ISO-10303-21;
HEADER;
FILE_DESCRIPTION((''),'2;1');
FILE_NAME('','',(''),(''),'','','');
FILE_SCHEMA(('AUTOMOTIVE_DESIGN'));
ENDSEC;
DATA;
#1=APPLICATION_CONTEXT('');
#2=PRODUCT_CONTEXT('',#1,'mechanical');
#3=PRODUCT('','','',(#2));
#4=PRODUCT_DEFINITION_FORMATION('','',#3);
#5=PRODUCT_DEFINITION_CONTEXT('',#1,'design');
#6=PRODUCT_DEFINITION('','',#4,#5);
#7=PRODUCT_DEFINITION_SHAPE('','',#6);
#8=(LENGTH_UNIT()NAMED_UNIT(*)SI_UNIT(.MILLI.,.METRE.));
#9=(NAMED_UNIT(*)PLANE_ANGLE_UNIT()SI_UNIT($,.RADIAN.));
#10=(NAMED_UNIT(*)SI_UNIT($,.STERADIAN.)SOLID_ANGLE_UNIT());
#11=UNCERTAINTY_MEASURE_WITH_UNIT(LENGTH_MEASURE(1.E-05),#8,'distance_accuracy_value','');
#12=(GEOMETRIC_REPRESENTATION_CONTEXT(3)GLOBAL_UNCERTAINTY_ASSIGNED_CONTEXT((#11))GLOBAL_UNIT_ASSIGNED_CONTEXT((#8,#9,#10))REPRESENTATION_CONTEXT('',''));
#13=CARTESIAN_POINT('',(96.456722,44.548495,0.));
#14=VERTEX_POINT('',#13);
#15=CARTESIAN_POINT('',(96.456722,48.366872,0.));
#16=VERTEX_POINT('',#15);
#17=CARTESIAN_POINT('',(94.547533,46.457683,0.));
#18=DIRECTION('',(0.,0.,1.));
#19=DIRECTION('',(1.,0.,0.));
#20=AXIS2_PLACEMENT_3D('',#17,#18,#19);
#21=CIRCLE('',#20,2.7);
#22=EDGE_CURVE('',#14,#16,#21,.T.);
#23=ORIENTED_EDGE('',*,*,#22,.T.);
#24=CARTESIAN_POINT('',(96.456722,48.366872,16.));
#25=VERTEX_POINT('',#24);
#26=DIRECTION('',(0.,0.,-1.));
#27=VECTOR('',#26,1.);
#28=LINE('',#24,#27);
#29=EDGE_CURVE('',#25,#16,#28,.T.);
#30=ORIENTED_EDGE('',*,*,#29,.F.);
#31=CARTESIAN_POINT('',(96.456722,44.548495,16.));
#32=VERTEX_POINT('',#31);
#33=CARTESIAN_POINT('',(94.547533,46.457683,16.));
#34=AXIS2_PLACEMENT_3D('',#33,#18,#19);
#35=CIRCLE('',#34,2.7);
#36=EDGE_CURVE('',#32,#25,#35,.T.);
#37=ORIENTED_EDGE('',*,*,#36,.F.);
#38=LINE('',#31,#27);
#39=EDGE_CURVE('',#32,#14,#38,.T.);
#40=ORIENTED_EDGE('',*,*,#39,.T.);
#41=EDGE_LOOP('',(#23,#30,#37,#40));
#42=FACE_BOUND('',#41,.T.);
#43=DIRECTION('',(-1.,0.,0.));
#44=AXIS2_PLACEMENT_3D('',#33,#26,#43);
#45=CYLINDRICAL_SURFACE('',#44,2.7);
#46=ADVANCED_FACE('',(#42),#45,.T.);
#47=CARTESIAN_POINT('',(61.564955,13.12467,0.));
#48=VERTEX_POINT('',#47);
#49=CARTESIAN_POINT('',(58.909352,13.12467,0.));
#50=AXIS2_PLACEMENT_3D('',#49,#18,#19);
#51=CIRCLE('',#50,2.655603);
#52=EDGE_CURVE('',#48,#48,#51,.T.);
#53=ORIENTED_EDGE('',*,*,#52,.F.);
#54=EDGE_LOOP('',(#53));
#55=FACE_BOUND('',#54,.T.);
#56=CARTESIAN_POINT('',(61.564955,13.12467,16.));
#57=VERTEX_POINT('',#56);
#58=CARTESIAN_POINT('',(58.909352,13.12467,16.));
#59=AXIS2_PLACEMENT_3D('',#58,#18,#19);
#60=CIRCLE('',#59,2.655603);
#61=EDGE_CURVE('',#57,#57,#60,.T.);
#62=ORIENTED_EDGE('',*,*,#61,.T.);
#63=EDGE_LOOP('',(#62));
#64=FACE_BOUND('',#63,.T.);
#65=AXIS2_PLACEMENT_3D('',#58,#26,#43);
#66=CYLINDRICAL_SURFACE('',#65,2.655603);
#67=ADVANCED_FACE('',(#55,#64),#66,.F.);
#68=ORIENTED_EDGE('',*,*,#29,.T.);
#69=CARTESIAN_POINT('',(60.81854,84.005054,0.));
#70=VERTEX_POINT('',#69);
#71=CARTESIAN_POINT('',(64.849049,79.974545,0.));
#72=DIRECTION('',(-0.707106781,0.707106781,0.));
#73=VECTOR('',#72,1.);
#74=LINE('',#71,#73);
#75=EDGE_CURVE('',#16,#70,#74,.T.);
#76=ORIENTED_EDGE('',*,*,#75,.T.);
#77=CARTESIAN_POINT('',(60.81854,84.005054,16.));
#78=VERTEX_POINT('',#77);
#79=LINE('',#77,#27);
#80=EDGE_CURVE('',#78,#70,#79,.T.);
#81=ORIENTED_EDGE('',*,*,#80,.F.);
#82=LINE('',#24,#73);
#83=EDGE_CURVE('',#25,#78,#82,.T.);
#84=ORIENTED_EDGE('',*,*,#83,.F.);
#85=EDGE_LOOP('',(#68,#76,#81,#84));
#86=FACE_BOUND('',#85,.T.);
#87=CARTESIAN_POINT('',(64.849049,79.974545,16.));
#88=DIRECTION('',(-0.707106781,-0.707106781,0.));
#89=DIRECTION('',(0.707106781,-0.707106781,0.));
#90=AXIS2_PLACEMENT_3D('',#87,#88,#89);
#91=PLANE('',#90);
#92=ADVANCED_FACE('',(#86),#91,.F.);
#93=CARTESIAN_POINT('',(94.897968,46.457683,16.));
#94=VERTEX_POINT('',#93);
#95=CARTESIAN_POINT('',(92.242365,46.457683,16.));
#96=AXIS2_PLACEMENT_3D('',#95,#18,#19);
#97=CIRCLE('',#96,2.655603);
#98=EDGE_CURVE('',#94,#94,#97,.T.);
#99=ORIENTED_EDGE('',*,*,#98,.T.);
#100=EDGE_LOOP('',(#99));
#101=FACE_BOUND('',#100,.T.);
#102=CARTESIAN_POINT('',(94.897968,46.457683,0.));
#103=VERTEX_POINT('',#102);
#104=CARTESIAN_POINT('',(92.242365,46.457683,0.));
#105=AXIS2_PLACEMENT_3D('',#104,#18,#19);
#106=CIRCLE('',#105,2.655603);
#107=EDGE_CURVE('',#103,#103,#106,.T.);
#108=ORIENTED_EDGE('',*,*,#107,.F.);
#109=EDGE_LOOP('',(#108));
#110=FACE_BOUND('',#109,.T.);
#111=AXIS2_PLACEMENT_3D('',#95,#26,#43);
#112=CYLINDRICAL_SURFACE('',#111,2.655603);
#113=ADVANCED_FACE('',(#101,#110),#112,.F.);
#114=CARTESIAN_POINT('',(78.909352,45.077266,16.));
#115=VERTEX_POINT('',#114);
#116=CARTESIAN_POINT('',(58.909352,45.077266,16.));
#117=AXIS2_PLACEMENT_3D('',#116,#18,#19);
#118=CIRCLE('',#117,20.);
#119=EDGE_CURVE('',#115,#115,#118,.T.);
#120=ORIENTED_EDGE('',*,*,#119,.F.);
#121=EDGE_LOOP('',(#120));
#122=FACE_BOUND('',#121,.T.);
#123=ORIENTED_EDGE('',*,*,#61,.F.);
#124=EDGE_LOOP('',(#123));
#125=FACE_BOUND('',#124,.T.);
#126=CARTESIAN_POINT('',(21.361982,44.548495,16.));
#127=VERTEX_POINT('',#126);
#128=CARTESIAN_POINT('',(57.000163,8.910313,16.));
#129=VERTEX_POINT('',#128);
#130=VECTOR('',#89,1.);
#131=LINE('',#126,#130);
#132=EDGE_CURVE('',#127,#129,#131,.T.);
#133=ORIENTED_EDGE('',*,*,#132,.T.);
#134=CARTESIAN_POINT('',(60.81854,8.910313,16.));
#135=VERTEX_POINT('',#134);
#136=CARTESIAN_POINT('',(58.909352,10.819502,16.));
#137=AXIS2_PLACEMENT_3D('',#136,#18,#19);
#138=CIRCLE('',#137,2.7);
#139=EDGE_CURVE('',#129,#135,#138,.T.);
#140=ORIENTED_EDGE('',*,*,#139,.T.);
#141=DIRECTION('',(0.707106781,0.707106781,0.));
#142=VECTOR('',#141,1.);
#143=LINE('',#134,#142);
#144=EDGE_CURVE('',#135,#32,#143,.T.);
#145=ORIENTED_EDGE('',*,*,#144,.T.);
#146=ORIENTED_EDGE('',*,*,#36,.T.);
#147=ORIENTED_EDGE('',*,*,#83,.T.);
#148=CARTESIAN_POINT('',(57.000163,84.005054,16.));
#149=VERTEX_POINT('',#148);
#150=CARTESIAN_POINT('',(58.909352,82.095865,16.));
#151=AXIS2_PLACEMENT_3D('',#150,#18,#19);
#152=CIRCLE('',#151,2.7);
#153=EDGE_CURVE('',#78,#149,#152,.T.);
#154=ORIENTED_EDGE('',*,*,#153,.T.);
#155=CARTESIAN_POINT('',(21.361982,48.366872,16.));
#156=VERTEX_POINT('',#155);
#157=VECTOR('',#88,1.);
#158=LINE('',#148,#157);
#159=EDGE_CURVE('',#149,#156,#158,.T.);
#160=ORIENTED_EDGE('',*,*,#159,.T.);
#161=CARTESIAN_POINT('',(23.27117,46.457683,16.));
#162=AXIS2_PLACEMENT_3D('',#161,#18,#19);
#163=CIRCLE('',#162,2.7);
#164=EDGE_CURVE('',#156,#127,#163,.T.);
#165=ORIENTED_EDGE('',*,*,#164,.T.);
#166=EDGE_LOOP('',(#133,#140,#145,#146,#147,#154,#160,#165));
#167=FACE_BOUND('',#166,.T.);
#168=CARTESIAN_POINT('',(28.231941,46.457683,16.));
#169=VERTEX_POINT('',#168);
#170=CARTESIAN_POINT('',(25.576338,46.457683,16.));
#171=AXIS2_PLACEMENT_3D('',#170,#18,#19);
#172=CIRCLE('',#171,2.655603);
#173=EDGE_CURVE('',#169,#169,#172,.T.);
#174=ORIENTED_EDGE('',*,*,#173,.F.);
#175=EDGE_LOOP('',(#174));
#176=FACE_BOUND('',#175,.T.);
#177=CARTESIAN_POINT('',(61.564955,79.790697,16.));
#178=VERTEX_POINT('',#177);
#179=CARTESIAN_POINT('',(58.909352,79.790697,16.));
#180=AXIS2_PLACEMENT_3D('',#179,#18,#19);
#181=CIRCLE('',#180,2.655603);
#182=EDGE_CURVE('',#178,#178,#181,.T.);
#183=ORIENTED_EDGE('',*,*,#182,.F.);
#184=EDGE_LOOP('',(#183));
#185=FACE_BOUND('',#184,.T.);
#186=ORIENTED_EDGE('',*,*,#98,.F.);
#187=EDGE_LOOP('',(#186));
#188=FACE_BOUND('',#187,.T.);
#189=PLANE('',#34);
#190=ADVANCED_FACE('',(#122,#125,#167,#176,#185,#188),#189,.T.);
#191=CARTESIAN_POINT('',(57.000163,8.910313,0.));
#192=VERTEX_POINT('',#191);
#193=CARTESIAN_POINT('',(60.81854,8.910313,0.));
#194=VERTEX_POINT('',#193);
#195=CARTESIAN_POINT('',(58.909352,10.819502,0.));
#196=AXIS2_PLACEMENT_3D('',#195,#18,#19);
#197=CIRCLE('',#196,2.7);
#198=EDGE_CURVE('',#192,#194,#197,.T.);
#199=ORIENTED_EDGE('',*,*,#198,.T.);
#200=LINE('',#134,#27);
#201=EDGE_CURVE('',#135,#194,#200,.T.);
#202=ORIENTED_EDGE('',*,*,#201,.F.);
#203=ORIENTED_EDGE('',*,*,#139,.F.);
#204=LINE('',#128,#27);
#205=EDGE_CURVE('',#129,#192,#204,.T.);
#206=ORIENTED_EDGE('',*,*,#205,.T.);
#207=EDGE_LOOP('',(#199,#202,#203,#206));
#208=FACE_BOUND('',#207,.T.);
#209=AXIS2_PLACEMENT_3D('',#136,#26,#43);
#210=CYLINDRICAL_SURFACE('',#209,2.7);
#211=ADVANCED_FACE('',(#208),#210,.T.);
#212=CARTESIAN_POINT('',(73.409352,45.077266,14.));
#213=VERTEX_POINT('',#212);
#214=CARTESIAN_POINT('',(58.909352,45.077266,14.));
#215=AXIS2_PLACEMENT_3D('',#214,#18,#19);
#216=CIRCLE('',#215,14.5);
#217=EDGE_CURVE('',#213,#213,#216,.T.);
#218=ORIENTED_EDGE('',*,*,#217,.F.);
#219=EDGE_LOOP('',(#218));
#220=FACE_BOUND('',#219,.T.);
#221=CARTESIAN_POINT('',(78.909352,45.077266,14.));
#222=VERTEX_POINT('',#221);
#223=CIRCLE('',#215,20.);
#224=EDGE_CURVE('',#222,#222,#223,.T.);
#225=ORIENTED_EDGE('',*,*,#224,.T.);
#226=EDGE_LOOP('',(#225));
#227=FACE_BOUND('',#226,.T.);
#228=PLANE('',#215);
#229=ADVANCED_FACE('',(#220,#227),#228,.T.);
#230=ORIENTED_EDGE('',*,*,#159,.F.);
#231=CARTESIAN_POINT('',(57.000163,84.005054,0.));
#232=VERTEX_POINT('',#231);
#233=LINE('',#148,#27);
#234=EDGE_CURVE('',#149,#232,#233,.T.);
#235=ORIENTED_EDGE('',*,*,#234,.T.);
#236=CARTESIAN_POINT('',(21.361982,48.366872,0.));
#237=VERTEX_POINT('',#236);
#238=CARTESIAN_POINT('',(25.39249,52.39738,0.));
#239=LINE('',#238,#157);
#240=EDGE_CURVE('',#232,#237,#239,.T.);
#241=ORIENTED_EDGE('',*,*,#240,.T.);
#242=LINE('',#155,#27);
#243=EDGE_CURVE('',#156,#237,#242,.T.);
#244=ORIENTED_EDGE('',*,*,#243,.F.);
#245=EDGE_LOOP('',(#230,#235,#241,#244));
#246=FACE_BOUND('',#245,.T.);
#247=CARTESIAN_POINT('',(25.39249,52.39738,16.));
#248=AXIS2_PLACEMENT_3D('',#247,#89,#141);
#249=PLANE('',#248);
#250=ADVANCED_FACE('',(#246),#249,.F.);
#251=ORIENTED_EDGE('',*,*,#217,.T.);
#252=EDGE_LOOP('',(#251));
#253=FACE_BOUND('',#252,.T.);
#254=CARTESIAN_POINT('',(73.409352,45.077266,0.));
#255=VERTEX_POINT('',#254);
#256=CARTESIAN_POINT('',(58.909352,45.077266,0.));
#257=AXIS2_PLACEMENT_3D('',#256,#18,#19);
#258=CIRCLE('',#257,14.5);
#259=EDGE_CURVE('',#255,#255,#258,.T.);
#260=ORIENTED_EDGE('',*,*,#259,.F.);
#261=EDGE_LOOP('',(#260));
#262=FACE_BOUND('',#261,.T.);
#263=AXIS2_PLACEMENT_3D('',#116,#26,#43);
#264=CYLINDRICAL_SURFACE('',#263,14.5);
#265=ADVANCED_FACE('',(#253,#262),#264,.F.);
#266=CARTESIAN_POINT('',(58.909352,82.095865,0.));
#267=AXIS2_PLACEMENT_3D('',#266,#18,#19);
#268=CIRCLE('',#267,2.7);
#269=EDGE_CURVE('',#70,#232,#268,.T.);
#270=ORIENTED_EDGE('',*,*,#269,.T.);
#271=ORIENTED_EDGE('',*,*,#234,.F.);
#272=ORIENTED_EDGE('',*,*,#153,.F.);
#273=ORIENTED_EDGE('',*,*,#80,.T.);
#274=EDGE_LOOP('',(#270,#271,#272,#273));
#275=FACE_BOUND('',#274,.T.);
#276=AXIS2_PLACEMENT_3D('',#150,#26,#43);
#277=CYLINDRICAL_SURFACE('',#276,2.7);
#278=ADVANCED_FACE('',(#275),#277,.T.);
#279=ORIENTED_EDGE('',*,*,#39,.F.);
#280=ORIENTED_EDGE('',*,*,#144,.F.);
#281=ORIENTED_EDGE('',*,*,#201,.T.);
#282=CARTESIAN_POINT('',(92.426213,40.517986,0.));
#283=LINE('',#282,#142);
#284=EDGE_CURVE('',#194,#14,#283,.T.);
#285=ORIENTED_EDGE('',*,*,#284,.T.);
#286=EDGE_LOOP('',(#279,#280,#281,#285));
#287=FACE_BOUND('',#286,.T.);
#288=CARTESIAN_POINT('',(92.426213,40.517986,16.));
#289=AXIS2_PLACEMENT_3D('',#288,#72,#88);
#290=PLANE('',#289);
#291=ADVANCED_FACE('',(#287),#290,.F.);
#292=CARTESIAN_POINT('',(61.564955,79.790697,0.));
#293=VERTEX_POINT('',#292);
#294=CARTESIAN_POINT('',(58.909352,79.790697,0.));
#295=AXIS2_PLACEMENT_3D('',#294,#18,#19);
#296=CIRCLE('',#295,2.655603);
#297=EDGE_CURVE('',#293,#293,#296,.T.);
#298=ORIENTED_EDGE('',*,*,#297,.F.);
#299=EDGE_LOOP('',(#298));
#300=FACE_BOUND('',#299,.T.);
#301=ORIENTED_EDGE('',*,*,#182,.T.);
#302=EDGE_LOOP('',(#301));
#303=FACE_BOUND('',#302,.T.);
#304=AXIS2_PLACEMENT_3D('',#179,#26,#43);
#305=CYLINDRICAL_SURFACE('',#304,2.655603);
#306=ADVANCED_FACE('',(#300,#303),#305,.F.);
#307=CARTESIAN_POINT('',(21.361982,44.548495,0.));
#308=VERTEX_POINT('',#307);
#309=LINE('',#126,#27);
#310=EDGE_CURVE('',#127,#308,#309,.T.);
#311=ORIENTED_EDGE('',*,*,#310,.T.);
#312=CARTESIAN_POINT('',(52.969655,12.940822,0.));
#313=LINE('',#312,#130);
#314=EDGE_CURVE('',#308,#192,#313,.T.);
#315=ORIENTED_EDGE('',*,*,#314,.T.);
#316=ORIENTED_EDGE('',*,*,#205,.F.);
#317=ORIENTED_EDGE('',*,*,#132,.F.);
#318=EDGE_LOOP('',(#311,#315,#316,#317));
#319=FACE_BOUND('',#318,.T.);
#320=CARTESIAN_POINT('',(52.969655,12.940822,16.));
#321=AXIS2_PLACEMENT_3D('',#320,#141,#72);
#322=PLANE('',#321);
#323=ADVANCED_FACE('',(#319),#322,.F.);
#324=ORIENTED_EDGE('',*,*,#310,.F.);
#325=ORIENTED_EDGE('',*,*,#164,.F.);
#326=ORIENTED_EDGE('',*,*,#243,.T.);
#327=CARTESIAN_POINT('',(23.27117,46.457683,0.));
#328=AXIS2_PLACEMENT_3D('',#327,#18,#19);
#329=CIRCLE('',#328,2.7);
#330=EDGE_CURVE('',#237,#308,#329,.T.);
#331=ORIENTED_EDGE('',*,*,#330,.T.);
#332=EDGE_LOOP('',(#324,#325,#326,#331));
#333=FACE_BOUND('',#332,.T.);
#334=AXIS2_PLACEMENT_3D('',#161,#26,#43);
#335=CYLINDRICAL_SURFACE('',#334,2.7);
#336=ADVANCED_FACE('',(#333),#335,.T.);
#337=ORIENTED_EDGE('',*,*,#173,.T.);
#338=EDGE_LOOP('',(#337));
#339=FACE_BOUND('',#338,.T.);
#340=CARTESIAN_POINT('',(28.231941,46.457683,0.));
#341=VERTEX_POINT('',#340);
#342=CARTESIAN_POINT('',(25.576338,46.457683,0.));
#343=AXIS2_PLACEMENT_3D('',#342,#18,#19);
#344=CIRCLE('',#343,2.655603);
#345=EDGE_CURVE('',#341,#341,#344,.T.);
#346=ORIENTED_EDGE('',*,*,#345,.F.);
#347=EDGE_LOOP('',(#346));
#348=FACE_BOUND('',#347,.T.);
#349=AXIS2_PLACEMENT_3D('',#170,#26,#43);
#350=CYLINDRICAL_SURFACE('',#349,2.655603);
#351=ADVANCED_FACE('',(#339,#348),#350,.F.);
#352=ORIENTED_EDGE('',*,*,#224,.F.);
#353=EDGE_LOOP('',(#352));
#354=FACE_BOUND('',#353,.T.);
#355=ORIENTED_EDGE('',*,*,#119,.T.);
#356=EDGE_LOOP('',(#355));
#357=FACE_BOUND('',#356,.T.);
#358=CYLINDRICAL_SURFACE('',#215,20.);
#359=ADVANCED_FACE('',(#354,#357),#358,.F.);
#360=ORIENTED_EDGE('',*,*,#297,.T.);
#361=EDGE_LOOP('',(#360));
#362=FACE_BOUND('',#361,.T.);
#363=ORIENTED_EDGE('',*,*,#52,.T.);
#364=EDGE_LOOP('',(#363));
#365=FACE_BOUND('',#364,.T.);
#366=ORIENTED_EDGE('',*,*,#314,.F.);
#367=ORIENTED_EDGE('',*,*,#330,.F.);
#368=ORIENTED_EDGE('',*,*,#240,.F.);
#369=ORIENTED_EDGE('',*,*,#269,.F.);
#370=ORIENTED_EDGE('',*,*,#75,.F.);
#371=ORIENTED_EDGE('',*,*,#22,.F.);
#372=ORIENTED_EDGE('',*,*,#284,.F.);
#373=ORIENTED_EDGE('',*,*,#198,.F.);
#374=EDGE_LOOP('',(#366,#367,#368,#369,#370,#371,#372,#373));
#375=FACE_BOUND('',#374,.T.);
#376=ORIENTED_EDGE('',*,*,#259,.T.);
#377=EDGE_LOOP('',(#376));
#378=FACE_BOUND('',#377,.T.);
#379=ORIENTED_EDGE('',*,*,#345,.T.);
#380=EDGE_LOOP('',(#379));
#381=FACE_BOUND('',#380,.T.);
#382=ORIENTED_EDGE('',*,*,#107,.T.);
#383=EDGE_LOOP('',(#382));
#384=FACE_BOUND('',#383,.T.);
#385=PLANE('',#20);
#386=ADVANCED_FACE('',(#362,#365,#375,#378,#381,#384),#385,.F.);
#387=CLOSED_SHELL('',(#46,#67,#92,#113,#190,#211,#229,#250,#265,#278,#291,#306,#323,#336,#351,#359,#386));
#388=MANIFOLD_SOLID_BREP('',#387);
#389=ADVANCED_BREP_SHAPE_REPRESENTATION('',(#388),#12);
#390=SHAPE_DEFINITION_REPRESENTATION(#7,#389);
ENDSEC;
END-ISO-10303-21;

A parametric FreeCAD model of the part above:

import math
import FreeCAD as App
import Part
import Sketcher
from FreeCAD import Vector
Q = App.Units.Quantity

doc = App.newDocument("Part")
body = doc.addObject("PartDesign::Body", "Body")

# Sketch on XY plane
sketch1 = body.newObject("Sketcher::SketchObject", "Sketch")
sketch1.AttachmentSupport = (doc.getObject("XY_Plane"), [""])
sketch1.MapMode = "FlatFace"
sketch1.addGeometry([
    Part.LineSegment(Vector(96.456722, 48.366872, 0), Vector(60.81854, 84.005054, 0)),  # 0
    Part.ArcOfCircle(Part.Circle(Vector(58.909352, 82.095865, 0), Vector(0, 0, 1), 2.7), math.radians(45), math.radians(135)),  # 1
    Part.LineSegment(Vector(57.000163, 84.005054, 0), Vector(25.39249, 52.39738, 0)),  # 2
    Part.LineSegment(Vector(25.39249, 52.39738, 0), Vector(21.361982, 48.366872, 0)),  # 3
    Part.ArcOfCircle(Part.Circle(Vector(23.27117, 46.457683, 0), Vector(0, 0, 1), 2.7), math.radians(135), math.radians(225)),  # 4
    Part.LineSegment(Vector(21.361982, 44.548495, 0), Vector(52.969655, 12.940822, 0)),  # 5
    Part.LineSegment(Vector(52.969655, 12.940822, 0), Vector(57.000163, 8.910313, 0)),  # 6
    Part.ArcOfCircle(Part.Circle(Vector(58.909352, 10.819502, 0), Vector(0, 0, 1), 2.7), math.radians(-135), math.radians(-45)),  # 7
    Part.LineSegment(Vector(60.81854, 8.910313, 0), Vector(96.456722, 44.548495, 0)),  # 8
    Part.ArcOfCircle(Part.Circle(Vector(94.547533, 46.457683, 0), Vector(0, 0, 1), 2.7), math.radians(-45), math.radians(45)),  # 9
    Part.Circle(Vector(58.909352, 13.12467, 0), Vector(0, 0, 1), 2.655603),  # 10
    Part.Circle(Vector(58.909352, 45.077266, 0), Vector(0, 0, 1), 14.5),  # 11
    Part.Circle(Vector(25.576338, 46.457683, 0), Vector(0, 0, 1), 2.655603),  # 12
    Part.Circle(Vector(92.242365, 46.457683, 0), Vector(0, 0, 1), 2.655603),  # 13
    Part.Circle(Vector(58.909352, 79.790697, 0), Vector(0, 0, 1), 2.655603),  # 14
], False)
sketch1.addConstraint([
    Sketcher.Constraint("Tangent", 0, 2, 1, 1),
    Sketcher.Constraint("Tangent", 1, 2, 2, 1),
    Sketcher.Constraint("Coincident", 2, 2, 3, 1),
    Sketcher.Constraint("Tangent", 3, 2, 4, 1),
    Sketcher.Constraint("Tangent", 4, 2, 5, 1),
    Sketcher.Constraint("Coincident", 5, 2, 6, 1),
    Sketcher.Constraint("Tangent", 6, 2, 7, 1),
    Sketcher.Constraint("Tangent", 7, 2, 8, 1),
    Sketcher.Constraint("Tangent", 8, 2, 9, 1),
    Sketcher.Constraint("Tangent", 9, 2, 0, 1),
    Sketcher.Constraint("Equal", 1, 4),
    Sketcher.Constraint("Equal", 4, 7),
    Sketcher.Constraint("Equal", 7, 9),
    Sketcher.Constraint("Equal", 10, 12),
    Sketcher.Constraint("Equal", 12, 13),
    Sketcher.Constraint("Equal", 13, 14),
    Sketcher.Constraint("Perpendicular", 0, 2),
    Sketcher.Constraint("Parallel", 2, 3),
    Sketcher.Constraint("Perpendicular", 3, 5),
    Sketcher.Constraint("Parallel", 5, 6),
    Sketcher.Constraint("Perpendicular", 6, 8),
    Sketcher.Constraint("Horizontal", 4, 3, 9, 3),
    Sketcher.Constraint("Horizontal", 9, 3, 12, 3),
    Sketcher.Constraint("Horizontal", 12, 3, 13, 3),
    Sketcher.Constraint("Horizontal", 0, 2, 1, 2),
    Sketcher.Constraint("Vertical", 7, 3, 10, 3),
    Sketcher.Constraint("Vertical", 10, 3, 11, 3),
    Sketcher.Constraint("Vertical", 11, 3, 14, 3),
    Sketcher.Constraint("Equal", 2, 5),
    Sketcher.Constraint("Diameter", 11, Q("29 mm")),
    Sketcher.Constraint("Radius", 1, Q("2.7 mm")),
    Sketcher.Constraint("Distance", 0, Q("50.4 mm")),
    Sketcher.Constraint("Distance", 2, Q("44.7 mm")),
    Sketcher.Constraint("Diameter", 10, Q("5.311206 mm")),
    Sketcher.Constraint("DistanceY", -1, 1, 7, 3, Q("10.819502 mm")),
    Sketcher.Constraint("DistanceY", 11, 3, 1, 3, Q("37.018599 mm")),
    Sketcher.Constraint("DistanceX", -1, 1, 1, 3, Q("58.909352 mm")),
    Sketcher.Constraint("DistanceY", -1, 1, 10, 3, Q("13.12467 mm")),
    Sketcher.Constraint("DistanceX", 4, 3, 12, 3, Q("2.305168 mm")),
    Sketcher.Constraint("DistanceX", 13, 3, 9, 3, Q("2.305168 mm")),
    Sketcher.Constraint("DistanceY", 14, 3, 1, 3, Q("2.305168 mm")),
])
pad1 = body.newObject("PartDesign::Pad", "Pad")
pad1.Profile = sketch1
pad1.Length = 16

# Sketch on XY plane
sketch2 = body.newObject("Sketcher::SketchObject", "Sketch001")
sketch2.AttachmentSupport = (doc.getObject("XY_Plane"), [""])
sketch2.MapMode = "FlatFace"
sketch2.AttachmentOffset = App.Placement(Vector(0, 0, 16), App.Rotation())
sketch2.addGeometry(Part.Circle(Vector(58.909352, 45.077266, 0), Vector(0, 0, 1), 20), False)
sketch2.addConstraint([
    Sketcher.Constraint("Diameter", 0, Q("40 mm")),
    Sketcher.Constraint("DistanceX", -1, 1, 0, 3, Q("58.909352 mm")),
    Sketcher.Constraint("DistanceY", -1, 1, 0, 3, Q("45.077266 mm")),
])
pocket1 = body.newObject("PartDesign::Pocket", "Pocket")
pocket1.Profile = sketch2
pocket1.Length = 2

doc.recompute()
